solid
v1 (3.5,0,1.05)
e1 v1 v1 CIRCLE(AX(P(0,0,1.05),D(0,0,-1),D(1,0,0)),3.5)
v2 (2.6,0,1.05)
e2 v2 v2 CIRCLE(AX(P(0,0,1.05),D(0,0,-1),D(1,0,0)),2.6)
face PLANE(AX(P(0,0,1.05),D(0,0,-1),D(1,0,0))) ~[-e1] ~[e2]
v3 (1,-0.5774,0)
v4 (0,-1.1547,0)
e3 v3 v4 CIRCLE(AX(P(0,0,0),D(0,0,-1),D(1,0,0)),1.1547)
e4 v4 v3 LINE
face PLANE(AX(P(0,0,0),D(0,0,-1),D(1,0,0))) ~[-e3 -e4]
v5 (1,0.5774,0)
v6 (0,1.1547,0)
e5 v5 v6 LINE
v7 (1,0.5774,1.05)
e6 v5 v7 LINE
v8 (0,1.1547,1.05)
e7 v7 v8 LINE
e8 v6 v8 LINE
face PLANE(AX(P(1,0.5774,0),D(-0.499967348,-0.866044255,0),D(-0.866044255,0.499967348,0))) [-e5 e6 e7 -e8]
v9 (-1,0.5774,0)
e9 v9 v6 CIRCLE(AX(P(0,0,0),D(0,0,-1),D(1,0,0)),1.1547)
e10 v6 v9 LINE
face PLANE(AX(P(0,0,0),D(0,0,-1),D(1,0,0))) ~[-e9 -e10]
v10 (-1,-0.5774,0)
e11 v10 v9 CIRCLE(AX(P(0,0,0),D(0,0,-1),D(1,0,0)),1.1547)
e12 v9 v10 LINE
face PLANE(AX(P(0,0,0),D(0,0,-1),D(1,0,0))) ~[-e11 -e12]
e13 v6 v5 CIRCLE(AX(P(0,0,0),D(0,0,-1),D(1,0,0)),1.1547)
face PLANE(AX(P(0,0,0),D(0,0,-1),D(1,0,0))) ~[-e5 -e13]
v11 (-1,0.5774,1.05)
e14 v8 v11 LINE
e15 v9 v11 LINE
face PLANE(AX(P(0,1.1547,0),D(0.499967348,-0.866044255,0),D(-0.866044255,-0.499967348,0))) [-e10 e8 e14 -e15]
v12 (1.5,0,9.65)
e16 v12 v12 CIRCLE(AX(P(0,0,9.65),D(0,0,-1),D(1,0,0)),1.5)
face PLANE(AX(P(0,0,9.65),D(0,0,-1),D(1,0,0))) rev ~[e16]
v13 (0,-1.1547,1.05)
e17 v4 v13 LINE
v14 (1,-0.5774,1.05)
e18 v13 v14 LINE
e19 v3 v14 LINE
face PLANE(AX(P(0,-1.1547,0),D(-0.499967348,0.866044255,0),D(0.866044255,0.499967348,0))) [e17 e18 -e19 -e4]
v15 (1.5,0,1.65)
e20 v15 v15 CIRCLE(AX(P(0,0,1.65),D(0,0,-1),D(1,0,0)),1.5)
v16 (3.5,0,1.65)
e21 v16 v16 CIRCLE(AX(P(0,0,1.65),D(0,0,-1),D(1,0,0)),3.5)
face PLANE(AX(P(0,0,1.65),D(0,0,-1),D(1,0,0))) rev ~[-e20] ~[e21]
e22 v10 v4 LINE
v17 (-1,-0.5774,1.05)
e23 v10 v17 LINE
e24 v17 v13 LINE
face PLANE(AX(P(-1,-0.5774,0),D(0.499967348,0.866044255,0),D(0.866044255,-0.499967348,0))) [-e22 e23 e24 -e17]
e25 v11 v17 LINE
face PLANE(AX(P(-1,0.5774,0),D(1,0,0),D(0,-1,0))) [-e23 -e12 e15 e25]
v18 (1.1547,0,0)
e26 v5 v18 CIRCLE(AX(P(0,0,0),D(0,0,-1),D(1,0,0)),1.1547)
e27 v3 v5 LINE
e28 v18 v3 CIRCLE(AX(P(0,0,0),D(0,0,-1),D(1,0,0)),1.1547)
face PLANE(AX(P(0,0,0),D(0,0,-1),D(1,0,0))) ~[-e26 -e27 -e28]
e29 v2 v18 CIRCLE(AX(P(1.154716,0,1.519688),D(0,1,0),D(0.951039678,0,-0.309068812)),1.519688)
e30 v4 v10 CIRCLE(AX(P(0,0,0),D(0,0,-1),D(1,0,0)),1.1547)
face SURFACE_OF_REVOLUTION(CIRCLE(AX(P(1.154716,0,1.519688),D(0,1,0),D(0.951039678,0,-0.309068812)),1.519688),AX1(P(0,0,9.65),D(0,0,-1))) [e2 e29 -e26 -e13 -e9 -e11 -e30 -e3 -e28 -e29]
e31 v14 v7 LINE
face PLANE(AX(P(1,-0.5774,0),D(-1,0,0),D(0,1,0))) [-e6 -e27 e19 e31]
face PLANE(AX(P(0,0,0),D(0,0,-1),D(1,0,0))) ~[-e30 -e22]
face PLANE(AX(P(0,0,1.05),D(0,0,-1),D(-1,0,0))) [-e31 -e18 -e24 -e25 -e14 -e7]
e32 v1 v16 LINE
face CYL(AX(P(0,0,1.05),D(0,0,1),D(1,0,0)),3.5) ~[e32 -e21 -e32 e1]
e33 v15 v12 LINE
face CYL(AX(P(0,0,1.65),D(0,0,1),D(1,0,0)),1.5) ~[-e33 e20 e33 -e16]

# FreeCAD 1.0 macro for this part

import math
import FreeCAD as App
import Part
import Sketcher
Q = App.Units.Quantity


def add_polygon(sketch, points):
    """Adds a closed chain of lines whose ends are joined by coincident constraints."""
    first, n = sketch.GeometryCount, len(points)
    for a, b in zip(points, points[1:] + points[:1]):
        sketch.addGeometry(Part.LineSegment(App.Vector(*a, 0), App.Vector(*b, 0)), False)
    for i in range(n):
        sketch.addConstraint(Sketcher.Constraint("Coincident", first + i, 2, first + (i + 1) % n, 1))

doc = App.newDocument("Part")
params = doc.addObject("Spreadsheet::Sheet", "Params")
for row, (alias, value) in enumerate([
    ("sketch1_height", "8 mm"),
    ("sketch1_height2", "0.6 mm"),
    ("sketch1_width", "2 mm"),
    ("sketch1_width2", "1.5 mm"),
    ("sketch1_width3", "0.9 mm"),
    ("revolution_angle", "360 deg"),
    ("pocket1_length", "1.05 mm"),
], start=1):
    params.set(f"A{row}", alias)
    params.set(f"B{row}", "=" + value)
    params.setAlias(f"B{row}", alias)

body = doc.addObject("PartDesign::Body", "Body")

# Sketch on XZ plane
sketch1 = body.newObject("Sketcher::SketchObject", "Sketch")
sketch1.AttachmentSupport = (doc.getObject("XZ_Plane"), [""])
sketch1.MapMode = "FlatFace"
sketch1.addGeometry([
    Part.LineSegment(App.Vector(1.2, 0, 0), App.Vector(0, 0, 0)),  # 0
    Part.LineSegment(App.Vector(0, 0, 0), App.Vector(0, 9.7, 0)),  # 1
    Part.LineSegment(App.Vector(0, 9.7, 0), App.Vector(1.5, 9.7, 0)),  # 2
    Part.LineSegment(App.Vector(1.5, 9.7, 0), App.Vector(1.5, 1.6, 0)),  # 3
    Part.LineSegment(App.Vector(1.5, 1.6, 0), App.Vector(3.5, 1.6, 0)),  # 4
    Part.LineSegment(App.Vector(3.5, 1.6, 0), App.Vector(3.5, 1.1, 0)),  # 5
    Part.LineSegment(App.Vector(3.5, 1.1, 0), App.Vector(2.6, 1.1, 0)),  # 6
    Part.ArcOfCircle(Part.Circle(App.Vector(1.2, 1.5, 0), App.Vector(0, 0, 1), 1.5), math.radians(-90), math.radians(-18)),  # 7
], False)
sketch1.addConstraint([
    Sketcher.Constraint("Coincident", 0, 2, 1, 1),
    Sketcher.Constraint("Coincident", 1, 2, 2, 1),
    Sketcher.Constraint("Coincident", 2, 2, 3, 1),
    Sketcher.Constraint("Coincident", 3, 2, 4, 1),
    Sketcher.Constraint("Coincident", 4, 2, 5, 1),
    Sketcher.Constraint("Coincident", 5, 2, 6, 1),
    Sketcher.Constraint("Coincident", 6, 2, 7, 2),
    Sketcher.Constraint("Tangent", 7, 1, 0, 1),
    Sketcher.Constraint("Horizontal", 0),
    Sketcher.Constraint("Vertical", 1),
    Sketcher.Constraint("Horizontal", 2),
    Sketcher.Constraint("Vertical", 3),
    Sketcher.Constraint("Horizontal", 4),
    Sketcher.Constraint("Vertical", 5),
    Sketcher.Constraint("Horizontal", 6),
    Sketcher.Constraint("Coincident", 0, 2, -1, 1),
    Sketcher.Constraint("DistanceY", 3, 2, 3, 1, Q("8 mm")),
    Sketcher.Constraint("DistanceY", 5, 2, 5, 1, Q("0.6 mm")),
    Sketcher.Constraint("DistanceX", 4, 1, 4, 2, Q("2 mm")),
    Sketcher.Constraint("DistanceY", -1, 1, 3, 2, Q("1.65 mm")),
    Sketcher.Constraint("DistanceX", 2, 1, 2, 2, Q("1.5 mm")),
    Sketcher.Constraint("DistanceX", 6, 2, 6, 1, Q("0.9 mm")),
    Sketcher.Constraint("Radius", 7, Q("1.5197 mm")),
])
sketch1.setExpression("Constraints[16]", "Params.sketch1_height")
sketch1.setExpression("Constraints[17]", "Params.sketch1_height2")
sketch1.setExpression("Constraints[18]", "Params.sketch1_width")
sketch1.setExpression("Constraints[20]", "Params.sketch1_width2")
sketch1.setExpression("Constraints[21]", "Params.sketch1_width3")
revolution = body.newObject("PartDesign::Revolution", "Revolution")
revolution.Profile = sketch1
revolution.ReferenceAxis = (sketch1, ["V_Axis"])
revolution.setExpression("Angle", "Params.revolution_angle")

# Sketch on XY plane
sketch2 = body.newObject("Sketcher::SketchObject", "Sketch001")
sketch2.AttachmentSupport = (doc.getObject("XY_Plane"), [""])
sketch2.MapMode = "FlatFace"
add_polygon(sketch2, [(-1, -0.6), (-1, 0.6), (0, 1.2), (1, 0.6), (1, -0.6), (0, -1.2)])  # lines 0-5
sketch2.addConstraint([
    Sketcher.Constraint("Vertical", 0),
    Sketcher.Constraint("Vertical", 3),
    Sketcher.Constraint("Symmetric", 0, 2, 3, 2, -1, 1),
    Sketcher.Constraint("Symmetric", 1, 2, 4, 2, -1, 1),
    Sketcher.Constraint("PointOnObject", 1, 2, -2),
    Sketcher.Constraint("Parallel", 2, 5),
    Sketcher.Constraint("Horizontal", 0, 2, 2, 2),
    Sketcher.Constraint("DistanceX", 0, 2, -1, 1, Q("1 mm")),
    Sketcher.Constraint("DistanceY", 0, 1, 0, 2, Q("1.1548 mm")),
    Sketcher.Constraint("DistanceY", 3, 2, 1, 2, Q("1.732 mm")),
])
pocket1 = body.newObject("PartDesign::Pocket", "Pocket")
pocket1.Profile = sketch2
pocket1.setExpression("Length", "Params.pocket1_length")
pocket1.Reversed = True

doc.recompute()
